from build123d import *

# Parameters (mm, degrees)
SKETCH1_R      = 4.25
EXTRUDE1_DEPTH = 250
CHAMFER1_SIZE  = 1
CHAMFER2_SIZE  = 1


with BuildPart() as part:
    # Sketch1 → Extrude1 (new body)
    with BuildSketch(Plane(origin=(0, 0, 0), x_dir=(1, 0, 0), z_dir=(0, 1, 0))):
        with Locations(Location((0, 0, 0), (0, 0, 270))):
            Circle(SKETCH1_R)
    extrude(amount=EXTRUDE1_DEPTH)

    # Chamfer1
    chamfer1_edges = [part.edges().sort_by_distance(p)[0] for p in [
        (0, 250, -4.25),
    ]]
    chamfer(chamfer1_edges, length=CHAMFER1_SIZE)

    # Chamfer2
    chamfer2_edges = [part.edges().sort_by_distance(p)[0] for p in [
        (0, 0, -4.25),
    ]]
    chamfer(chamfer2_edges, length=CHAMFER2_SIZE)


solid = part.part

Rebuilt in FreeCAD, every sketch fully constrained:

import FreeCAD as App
import Part
import Sketcher

V = App.Vector
Q = App.Units.Quantity


def edges_at(feature, points):
    """Names of the edges that pass closest to the given points."""
    edges = feature.Shape.Edges
    near = lambda p: min(range(len(edges)), key=lambda i: edges[i].distToShape(Part.Vertex(*p))[0])
    return sorted({f"Edge{near(p) + 1}" for p in points})

doc = App.newDocument("Part")
body = doc.addObject("PartDesign::Body", "Body")

# Sketch on XZ plane
sketch1 = body.newObject("Sketcher::SketchObject", "Sketch")
sketch1.AttachmentSupport = (doc.getObject("XZ_Plane"), [""])
sketch1.MapMode = "FlatFace"
sketch1.addGeometry(Part.Circle(V(0, 0, 0), V(0, 0, 1), 4.2), False)
sketch1.addConstraint([
    Sketcher.Constraint("Coincident", 0, 3, -1, 1),
    Sketcher.Constraint("Diameter", 0, Q("8.5 mm")),
])
pad1 = body.newObject("PartDesign::Pad", "Pad")
pad1.Profile = sketch1
pad1.Length = 250
pad1.Reversed = True
doc.recompute()

chamfer = body.newObject("PartDesign::Chamfer", "Chamfer")
chamfer.Base = (pad1, edges_at(pad1, [(0, 250, -4.25)]))
chamfer.Size = 1
doc.recompute()

chamfer2 = body.newObject("PartDesign::Chamfer", "Chamfer001")
chamfer2.Base = (chamfer, edges_at(chamfer, [(0, 0, -4.25)]))
chamfer2.Size = 1

doc.recompute()
